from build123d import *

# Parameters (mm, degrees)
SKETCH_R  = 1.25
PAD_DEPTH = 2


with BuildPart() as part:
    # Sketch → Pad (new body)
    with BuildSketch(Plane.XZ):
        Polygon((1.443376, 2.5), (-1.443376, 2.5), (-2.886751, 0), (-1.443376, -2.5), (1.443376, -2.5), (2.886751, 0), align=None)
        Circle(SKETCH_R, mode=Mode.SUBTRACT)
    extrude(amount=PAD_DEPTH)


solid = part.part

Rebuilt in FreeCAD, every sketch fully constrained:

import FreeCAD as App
import Part
import Sketcher
from FreeCAD import Vector
Q = App.Units.Quantity


def add_polygon(sketch, points):
    """Adds a closed chain of lines whose ends are joined by coincident constraints."""
    first, n = sketch.GeometryCount, len(points)
    for a, b in zip(points, points[1:] + points[:1]):
        sketch.addGeometry(Part.LineSegment(App.Vector(*a, 0), App.Vector(*b, 0)), False)
    for i in range(n):
        sketch.addConstraint(Sketcher.Constraint("Coincident", first + i, 2, first + (i + 1) % n, 1))

doc = App.newDocument("Part")
body = doc.addObject("PartDesign::Body", "Body")

sketch1 = body.newObject("Sketcher::SketchObject", "Sketch")
sketch1.AttachmentSupport = (doc.getObject("XZ_Plane"), [""])
sketch1.MapMode = "FlatFace"
add_polygon(sketch1, [(1.4, 2.5), (-1.4, 2.5), (-2.9, 0), (-1.4, -2.5), (1.4, -2.5), (2.9, 0)])
sketch1.addGeometry(Part.Circle(Vector(0, 0, 0), Vector(0, 0, 1), 1.2), False)
sketch1.addConstraint(Sketcher.Constraint("Horizontal", 0))
sketch1.addConstraint(Sketcher.Constraint("Horizontal", 3))
sketch1.addConstraint(Sketcher.Constraint("Coincident", 6, 3, -1, 1))
sketch1.addConstraint(Sketcher.Constraint("Symmetric", 0, 2, 3, 2, -1, 1))
sketch1.addConstraint(Sketcher.Constraint("Symmetric", 1, 2, 4, 2, -1, 1))
sketch1.addConstraint(Sketcher.Constraint("PointOnObject", 1, 2, -1))
sketch1.addConstraint(Sketcher.Constraint("Parallel", 2, 5))
sketch1.addConstraint(Sketcher.Constraint("Vertical", 0, 2, 2, 2))
sketch1.addConstraint(Sketcher.Constraint("Diameter", 6, Q("2.5 mm")))
sketch1.addConstraint(Sketcher.Constraint("Angle", 1, Q("-119.999988 deg")))
sketch1.addConstraint(Sketcher.Constraint("DistanceY", 2, 2, 0, 2, Q("5 mm")))
sketch1.addConstraint(Sketcher.Constraint("DistanceX", 0, 2, 0, 1, Q("2.886752 mm")))
pad1 = body.newObject("PartDesign::Pad", "Pad")
pad1.Profile = sketch1
pad1.Length = 2

doc.recompute()
